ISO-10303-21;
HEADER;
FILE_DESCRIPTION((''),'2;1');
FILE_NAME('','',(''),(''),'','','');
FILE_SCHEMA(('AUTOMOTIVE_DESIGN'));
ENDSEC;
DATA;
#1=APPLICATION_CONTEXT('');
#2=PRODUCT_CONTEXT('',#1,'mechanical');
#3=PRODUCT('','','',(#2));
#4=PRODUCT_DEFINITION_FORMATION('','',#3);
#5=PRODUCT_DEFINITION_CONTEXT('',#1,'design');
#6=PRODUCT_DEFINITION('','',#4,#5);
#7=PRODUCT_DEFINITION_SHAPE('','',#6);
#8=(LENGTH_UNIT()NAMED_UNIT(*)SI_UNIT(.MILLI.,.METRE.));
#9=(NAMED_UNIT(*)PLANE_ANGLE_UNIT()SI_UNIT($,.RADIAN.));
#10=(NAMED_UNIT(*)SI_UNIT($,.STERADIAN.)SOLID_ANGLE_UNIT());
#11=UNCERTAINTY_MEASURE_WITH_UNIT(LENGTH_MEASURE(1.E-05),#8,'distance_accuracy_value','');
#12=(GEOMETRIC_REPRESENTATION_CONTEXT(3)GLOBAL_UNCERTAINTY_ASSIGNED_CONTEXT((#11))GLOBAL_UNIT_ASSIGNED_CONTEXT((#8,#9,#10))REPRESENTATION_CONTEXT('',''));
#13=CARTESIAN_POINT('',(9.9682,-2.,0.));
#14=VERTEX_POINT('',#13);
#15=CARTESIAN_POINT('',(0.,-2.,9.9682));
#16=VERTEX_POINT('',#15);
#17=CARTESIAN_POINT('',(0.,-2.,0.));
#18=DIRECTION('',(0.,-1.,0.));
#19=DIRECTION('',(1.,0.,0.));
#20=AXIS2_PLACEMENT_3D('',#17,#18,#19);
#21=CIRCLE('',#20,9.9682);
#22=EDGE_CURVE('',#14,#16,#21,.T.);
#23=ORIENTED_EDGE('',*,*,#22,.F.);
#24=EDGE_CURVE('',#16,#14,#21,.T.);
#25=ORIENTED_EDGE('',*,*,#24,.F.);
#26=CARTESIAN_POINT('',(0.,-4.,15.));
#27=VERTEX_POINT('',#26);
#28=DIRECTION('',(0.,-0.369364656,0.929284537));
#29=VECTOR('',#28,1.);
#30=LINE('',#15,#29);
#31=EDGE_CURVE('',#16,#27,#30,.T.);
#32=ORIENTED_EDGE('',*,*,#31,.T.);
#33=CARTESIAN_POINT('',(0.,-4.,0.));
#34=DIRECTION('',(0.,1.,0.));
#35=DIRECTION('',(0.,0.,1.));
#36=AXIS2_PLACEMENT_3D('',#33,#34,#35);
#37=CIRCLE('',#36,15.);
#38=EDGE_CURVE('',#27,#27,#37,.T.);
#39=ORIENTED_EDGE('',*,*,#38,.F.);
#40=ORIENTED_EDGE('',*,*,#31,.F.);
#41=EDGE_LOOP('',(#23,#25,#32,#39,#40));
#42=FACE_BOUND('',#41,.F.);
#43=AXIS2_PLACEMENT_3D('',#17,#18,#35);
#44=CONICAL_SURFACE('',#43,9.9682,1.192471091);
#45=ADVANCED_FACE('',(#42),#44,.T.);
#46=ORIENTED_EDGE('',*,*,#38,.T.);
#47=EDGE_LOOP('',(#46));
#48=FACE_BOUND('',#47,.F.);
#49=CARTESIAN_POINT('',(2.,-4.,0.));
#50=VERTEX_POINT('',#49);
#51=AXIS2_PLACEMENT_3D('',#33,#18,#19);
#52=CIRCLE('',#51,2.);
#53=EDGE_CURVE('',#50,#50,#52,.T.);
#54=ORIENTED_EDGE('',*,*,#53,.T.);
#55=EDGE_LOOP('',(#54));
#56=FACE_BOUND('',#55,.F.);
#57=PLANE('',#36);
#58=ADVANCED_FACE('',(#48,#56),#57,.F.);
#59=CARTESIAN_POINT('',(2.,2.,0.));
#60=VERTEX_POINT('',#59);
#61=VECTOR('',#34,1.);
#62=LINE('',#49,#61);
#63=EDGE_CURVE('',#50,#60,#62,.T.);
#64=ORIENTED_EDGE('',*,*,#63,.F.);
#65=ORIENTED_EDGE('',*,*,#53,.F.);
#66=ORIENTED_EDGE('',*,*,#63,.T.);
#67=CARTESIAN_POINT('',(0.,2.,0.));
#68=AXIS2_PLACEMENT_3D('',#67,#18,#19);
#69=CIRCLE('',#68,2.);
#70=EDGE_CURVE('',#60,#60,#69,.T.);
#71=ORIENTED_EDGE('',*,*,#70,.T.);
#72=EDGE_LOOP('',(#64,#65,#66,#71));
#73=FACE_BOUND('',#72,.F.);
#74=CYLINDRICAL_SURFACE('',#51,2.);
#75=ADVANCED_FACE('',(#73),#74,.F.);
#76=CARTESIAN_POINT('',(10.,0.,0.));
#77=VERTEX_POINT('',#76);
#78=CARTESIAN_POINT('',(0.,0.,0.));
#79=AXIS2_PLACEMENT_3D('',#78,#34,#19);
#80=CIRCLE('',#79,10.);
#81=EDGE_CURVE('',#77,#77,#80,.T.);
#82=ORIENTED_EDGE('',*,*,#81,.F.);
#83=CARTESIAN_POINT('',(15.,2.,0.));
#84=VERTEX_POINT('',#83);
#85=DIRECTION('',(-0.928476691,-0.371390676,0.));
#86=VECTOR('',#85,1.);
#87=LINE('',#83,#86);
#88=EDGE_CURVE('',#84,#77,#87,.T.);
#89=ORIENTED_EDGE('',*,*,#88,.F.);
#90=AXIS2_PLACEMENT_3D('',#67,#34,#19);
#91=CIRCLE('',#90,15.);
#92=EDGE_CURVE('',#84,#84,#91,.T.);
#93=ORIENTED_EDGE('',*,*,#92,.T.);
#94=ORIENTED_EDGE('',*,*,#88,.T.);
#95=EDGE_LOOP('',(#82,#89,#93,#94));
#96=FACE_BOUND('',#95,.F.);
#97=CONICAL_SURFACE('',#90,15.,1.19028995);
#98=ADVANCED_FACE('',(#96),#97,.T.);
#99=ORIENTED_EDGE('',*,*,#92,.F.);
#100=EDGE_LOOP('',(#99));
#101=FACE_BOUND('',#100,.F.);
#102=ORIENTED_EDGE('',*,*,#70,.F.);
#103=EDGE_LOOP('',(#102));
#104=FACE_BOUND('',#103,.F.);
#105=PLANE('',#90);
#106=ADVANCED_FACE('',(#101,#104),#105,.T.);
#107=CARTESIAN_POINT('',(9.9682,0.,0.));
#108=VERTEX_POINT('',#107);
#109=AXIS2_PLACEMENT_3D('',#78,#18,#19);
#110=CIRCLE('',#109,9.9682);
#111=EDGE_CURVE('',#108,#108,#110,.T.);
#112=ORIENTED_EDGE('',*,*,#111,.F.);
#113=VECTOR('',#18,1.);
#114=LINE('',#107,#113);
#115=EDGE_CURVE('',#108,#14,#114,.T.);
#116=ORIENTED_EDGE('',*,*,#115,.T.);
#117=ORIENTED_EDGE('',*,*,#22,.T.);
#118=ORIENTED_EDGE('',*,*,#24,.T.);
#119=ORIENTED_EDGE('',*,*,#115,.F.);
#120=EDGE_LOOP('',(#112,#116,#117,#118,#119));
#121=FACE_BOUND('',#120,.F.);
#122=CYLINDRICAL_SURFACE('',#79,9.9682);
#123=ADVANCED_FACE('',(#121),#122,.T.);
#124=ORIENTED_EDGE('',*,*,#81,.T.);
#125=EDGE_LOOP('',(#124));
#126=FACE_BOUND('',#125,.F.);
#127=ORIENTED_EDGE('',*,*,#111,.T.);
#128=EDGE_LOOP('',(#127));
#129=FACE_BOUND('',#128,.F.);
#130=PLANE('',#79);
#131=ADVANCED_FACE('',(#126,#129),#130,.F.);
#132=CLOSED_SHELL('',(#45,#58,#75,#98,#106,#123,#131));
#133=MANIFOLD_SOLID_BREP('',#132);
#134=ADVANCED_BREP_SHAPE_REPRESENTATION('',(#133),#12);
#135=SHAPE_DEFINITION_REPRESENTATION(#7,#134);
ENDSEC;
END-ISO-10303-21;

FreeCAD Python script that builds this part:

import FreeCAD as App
import Part
import Sketcher

doc = App.newDocument("Part")
body = doc.addObject("PartDesign::Body", "Body")

# Sketch on XY plane
sketch1 = body.newObject("Sketcher::SketchObject", "Sketch")
sketch1.AttachmentSupport = (doc.getObject("XY_Plane"), [""])
sketch1.MapMode = "FlatFace"
sketch1.addGeometry([
    Part.LineSegment(App.Vector(0, 2, 0), App.Vector(0, 0, 0)),
    Part.LineSegment(App.Vector(0, 0, 0), App.Vector(10, 0, 0)),
    Part.LineSegment(App.Vector(10, 0, 0), App.Vector(15, 2, 0)),
    Part.LineSegment(App.Vector(15, 2, 0), App.Vector(0, 2, 0)),
], False)
sketch1.addConstraint([
    Sketcher.Constraint("Coincident", 0, 2, 1, 1),
    Sketcher.Constraint("Coincident", 1, 2, 2, 1),
    Sketcher.Constraint("Coincident", 2, 2, 3, 1),
    Sketcher.Constraint("Coincident", 3, 2, 0, 1),
    Sketcher.Constraint("Vertical", 0),
    Sketcher.Constraint("Horizontal", 1),
    Sketcher.Constraint("Horizontal", 3),
    Sketcher.Constraint("Coincident", 0, 2, -1, 1),
    Sketcher.Constraint("DistanceX", 1, 1, 1, 2, 10.0),
    Sketcher.Constraint("DistanceX", 3, 2, 3, 1, 15.0),
    Sketcher.Constraint("DistanceY", 0, 2, 0, 1, 2.0),
])
revolution = body.newObject("PartDesign::Revolution", "Revolution")
revolution.Profile = sketch1
revolution.ReferenceAxis = (sketch1, ["V_Axis"])
revolution.Angle = 360

# Sketch on XZ plane
sketch2 = body.newObject("Sketcher::SketchObject", "Sketch001")
sketch2.AttachmentSupport = (doc.getObject("XZ_Plane"), [""])
sketch2.MapMode = "FlatFace"
sketch2.addGeometry(Part.Circle(App.Vector(0, 0, 0), App.Vector(0, 0, 1), 10), False)
sketch2.addConstraint([
    Sketcher.Constraint("Coincident", 0, 3, -1, 1),
    Sketcher.Constraint("Diameter", 0, 19.9364),
])
pad1 = body.newObject("PartDesign::Pad", "Pad")
pad1.Profile = sketch2
pad1.Length = 2

# Sketch on YZ plane
sketch3 = body.newObject("Sketcher::SketchObject", "Sketch002")
sketch3.AttachmentSupport = (doc.getObject("YZ_Plane"), [""])
sketch3.MapMode = "FlatFace"
sketch3.addGeometry([
    Part.LineSegment(App.Vector(-2, 0, 0), App.Vector(-2, 10, 0)),
    Part.LineSegment(App.Vector(-2, 10, 0), App.Vector(-4, 15, 0)),
    Part.LineSegment(App.Vector(-4, 15, 0), App.Vector(-4, 0, 0)),
    Part.LineSegment(App.Vector(-4, 0, 0), App.Vector(-2, 0, 0)),
], False)
sketch3.addConstraint([
    Sketcher.Constraint("Coincident", 0, 2, 1, 1),
    Sketcher.Constraint("Coincident", 1, 2, 2, 1),
    Sketcher.Constraint("Coincident", 2, 2, 3, 1),
    Sketcher.Constraint("Coincident", 3, 2, 0, 1),
    Sketcher.Constraint("Vertical", 0),
    Sketcher.Constraint("Vertical", 2),
    Sketcher.Constraint("Horizontal", 3),
    Sketcher.Constraint("PointOnObject", 2, 2, -1),
    Sketcher.Constraint("DistanceX", 3, 1, 3, 2, 2.0),
    Sketcher.Constraint("DistanceY", 2, 2, 2, 1, 15.0),
    Sketcher.Constraint("DistanceX", 0, 2, -1, 1, 2.0),
    Sketcher.Constraint("DistanceY", 0, 1, 0, 2, 9.9682),
])
revolution2 = body.newObject("PartDesign::Revolution", "Revolution001")
revolution2.Profile = sketch3
revolution2.ReferenceAxis = (sketch3, ["H_Axis"])
revolution2.Angle = 360

# Sketch on XZ plane
sketch4 = body.newObject("Sketcher::SketchObject", "Sketch003")
sketch4.AttachmentSupport = (doc.getObject("XZ_Plane"), [""])
sketch4.MapMode = "FlatFace"
sketch4.AttachmentOffset = App.Placement(App.Vector(0, 0, 4), App.Rotation())
sketch4.addGeometry(Part.Circle(App.Vector(0, 0, 0), App.Vector(0, 0, 1), 2), False)
sketch4.addConstraint([
    Sketcher.Constraint("Coincident", 0, 3, -1, 1),
    Sketcher.Constraint("Diameter", 0, 4.0),
])
pocket1 = body.newObject("PartDesign::Pocket", "Pocket")
pocket1.Profile = sketch4
pocket1.Length = 6

doc.recompute()
